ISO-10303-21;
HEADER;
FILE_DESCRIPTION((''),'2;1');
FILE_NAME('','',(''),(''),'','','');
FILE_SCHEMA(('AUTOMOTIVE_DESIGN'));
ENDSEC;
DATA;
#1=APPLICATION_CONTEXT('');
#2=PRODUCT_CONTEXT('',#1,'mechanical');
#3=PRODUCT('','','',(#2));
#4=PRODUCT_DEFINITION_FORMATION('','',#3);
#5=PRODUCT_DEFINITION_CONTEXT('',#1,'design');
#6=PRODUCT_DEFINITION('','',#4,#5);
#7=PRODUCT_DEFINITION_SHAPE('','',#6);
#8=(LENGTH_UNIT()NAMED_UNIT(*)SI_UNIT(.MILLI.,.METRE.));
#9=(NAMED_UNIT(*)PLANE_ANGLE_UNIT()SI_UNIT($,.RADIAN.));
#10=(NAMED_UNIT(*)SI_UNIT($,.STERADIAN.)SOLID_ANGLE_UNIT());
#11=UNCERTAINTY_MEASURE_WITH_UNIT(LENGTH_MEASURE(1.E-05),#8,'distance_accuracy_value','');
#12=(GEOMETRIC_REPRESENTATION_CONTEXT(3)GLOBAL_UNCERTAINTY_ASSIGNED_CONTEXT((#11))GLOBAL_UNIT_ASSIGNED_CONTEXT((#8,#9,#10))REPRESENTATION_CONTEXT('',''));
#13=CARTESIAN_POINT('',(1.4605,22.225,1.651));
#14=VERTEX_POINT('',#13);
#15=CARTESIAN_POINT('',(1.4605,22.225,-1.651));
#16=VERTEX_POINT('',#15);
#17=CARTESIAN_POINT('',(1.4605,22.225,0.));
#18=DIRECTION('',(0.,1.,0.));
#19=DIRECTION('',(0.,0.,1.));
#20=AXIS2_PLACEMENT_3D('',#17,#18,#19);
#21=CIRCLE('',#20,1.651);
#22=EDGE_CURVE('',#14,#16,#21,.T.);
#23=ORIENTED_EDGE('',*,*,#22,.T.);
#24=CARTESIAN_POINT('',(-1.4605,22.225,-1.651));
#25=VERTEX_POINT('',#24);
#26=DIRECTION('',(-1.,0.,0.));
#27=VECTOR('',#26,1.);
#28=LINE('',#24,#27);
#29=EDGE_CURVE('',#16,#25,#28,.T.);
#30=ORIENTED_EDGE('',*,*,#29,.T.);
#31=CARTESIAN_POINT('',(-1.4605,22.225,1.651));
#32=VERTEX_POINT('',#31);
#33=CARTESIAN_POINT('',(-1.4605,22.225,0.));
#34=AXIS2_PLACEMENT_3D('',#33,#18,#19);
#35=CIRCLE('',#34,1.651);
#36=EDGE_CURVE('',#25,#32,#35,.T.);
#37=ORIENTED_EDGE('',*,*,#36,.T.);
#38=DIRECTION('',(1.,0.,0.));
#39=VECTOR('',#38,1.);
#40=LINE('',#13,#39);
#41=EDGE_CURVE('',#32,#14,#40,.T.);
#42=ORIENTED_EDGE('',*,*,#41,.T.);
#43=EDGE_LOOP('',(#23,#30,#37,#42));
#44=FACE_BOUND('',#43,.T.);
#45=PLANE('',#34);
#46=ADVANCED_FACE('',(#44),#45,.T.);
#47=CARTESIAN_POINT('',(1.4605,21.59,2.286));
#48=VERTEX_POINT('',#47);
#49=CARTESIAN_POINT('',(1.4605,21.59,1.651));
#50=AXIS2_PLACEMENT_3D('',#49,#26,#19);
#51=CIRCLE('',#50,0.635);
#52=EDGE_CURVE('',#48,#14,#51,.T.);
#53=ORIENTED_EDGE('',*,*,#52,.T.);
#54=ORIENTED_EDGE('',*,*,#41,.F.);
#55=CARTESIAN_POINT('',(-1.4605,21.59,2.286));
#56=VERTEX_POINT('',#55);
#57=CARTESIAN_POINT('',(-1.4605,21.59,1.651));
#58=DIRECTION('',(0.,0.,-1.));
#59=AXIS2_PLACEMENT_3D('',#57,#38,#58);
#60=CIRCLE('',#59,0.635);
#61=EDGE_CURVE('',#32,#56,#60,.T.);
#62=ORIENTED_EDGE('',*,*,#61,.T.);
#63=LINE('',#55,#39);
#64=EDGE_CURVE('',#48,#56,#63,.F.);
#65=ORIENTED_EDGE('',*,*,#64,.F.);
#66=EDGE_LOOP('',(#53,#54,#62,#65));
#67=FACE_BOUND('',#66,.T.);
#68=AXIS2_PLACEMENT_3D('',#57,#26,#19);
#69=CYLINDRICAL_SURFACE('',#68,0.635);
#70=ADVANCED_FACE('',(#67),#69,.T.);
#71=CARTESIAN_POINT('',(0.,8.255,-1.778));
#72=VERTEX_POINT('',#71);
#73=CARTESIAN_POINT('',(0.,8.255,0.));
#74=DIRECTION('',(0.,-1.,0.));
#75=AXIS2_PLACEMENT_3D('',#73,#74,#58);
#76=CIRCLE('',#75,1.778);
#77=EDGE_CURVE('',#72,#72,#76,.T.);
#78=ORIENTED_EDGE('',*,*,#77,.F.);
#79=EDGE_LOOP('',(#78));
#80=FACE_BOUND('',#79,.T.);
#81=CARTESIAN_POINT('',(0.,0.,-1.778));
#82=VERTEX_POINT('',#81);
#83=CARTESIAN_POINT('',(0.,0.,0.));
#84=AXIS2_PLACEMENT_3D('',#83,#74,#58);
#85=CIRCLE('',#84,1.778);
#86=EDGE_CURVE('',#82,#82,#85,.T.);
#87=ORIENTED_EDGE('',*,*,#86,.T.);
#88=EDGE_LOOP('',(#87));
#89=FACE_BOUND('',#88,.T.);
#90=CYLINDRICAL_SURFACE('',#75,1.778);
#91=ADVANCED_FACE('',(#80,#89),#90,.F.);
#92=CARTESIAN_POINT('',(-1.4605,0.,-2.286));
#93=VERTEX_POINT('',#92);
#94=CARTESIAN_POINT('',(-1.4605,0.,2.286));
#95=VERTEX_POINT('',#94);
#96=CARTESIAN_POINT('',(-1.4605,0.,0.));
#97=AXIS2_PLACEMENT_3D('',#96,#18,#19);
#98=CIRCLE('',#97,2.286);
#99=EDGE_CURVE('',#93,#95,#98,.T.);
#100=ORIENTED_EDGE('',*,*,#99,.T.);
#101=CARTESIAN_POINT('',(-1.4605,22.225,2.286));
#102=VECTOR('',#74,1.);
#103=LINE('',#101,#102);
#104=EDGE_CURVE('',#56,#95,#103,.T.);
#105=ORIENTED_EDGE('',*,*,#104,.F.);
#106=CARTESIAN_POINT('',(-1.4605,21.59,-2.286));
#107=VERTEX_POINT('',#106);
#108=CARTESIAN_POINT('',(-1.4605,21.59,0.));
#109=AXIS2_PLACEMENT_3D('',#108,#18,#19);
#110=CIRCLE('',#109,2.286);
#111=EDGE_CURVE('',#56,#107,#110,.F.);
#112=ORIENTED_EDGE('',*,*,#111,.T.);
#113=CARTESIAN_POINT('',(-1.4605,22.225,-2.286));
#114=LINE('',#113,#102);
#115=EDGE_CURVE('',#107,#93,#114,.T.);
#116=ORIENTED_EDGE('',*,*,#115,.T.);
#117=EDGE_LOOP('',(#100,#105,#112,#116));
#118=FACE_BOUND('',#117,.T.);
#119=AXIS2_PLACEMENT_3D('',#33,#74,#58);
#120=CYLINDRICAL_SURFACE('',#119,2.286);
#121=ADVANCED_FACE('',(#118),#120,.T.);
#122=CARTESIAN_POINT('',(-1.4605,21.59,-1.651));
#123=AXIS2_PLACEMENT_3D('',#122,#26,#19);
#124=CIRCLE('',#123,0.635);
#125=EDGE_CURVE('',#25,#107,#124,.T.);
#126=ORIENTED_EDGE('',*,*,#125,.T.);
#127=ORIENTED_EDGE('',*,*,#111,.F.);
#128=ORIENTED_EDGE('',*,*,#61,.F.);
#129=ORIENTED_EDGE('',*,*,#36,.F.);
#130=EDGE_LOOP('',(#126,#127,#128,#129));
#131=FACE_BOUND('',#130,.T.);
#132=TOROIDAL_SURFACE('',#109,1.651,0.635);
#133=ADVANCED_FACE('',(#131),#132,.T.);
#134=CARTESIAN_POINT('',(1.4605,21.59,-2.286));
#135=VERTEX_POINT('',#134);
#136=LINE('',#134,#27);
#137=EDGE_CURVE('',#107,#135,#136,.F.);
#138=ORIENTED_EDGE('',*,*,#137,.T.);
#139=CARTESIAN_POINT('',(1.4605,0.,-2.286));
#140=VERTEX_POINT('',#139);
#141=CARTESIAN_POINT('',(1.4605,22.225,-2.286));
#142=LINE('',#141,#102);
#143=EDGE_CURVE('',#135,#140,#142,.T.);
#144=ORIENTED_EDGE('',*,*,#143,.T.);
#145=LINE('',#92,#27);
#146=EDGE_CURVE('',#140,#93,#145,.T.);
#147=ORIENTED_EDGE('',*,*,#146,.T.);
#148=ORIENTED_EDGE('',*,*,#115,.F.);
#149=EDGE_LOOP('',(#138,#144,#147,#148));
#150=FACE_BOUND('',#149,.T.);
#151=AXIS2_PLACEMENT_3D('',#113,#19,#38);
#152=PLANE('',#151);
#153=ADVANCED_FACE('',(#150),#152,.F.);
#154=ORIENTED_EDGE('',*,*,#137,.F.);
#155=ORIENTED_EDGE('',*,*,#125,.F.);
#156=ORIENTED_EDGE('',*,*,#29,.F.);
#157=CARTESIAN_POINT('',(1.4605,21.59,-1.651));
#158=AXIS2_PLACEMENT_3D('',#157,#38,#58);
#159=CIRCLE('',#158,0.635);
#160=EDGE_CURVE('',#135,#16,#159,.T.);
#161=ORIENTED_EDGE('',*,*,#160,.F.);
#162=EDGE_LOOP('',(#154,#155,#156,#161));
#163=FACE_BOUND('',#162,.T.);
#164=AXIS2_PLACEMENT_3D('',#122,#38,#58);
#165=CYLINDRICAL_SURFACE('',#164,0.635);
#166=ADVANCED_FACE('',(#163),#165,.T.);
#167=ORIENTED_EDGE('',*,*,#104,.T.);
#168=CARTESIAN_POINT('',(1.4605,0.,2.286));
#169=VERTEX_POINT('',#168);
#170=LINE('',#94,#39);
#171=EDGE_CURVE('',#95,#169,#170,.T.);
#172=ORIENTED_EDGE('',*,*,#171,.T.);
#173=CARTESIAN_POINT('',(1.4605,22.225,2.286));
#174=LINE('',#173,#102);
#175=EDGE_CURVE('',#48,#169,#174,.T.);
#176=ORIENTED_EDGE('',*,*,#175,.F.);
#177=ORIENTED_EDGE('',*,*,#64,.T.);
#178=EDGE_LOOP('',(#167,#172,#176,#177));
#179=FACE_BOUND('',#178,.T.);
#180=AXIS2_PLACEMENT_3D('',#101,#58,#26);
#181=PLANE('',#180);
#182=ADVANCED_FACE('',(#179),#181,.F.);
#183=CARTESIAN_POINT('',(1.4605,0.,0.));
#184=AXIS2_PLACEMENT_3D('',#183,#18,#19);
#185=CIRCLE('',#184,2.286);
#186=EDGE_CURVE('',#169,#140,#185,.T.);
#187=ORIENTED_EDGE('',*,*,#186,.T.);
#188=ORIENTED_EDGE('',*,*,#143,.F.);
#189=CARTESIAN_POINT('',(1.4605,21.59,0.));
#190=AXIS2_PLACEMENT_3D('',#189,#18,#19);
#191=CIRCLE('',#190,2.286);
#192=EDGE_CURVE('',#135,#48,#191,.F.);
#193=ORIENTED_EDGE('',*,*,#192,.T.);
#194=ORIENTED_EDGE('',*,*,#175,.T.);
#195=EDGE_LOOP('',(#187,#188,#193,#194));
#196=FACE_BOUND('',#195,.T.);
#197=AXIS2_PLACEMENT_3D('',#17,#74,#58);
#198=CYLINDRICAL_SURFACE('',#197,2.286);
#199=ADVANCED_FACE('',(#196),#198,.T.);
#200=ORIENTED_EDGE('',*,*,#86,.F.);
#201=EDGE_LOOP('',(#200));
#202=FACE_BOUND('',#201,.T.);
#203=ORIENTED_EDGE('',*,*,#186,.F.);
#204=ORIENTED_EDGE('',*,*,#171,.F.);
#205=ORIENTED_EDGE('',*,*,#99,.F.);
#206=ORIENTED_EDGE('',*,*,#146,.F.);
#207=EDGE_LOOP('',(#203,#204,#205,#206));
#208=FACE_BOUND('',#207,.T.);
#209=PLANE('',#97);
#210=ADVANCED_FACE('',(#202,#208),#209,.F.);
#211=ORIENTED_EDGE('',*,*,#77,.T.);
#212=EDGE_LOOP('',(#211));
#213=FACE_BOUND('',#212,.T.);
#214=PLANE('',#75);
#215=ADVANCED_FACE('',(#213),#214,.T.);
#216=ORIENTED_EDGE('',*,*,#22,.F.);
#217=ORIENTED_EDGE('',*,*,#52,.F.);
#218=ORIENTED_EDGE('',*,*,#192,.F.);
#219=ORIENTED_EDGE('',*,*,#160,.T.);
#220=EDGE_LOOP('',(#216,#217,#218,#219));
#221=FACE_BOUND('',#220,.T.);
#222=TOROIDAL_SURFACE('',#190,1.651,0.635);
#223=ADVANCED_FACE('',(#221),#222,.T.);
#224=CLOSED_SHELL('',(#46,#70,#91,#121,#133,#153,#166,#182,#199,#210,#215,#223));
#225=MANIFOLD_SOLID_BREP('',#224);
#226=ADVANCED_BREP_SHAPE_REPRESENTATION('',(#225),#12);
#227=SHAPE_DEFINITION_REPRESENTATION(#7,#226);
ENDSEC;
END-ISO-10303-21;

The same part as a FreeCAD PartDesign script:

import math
import FreeCAD as App
import Part
import Sketcher

V = App.Vector
Q = App.Units.Quantity


def edges_at(feature, points):
    """Names of the edges that pass closest to the given points."""
    edges = feature.Shape.Edges
    near = lambda p: min(range(len(edges)), key=lambda i: edges[i].distToShape(Part.Vertex(*p))[0])
    return sorted({f"Edge{near(p) + 1}" for p in points})

doc = App.newDocument("Part")
body = doc.addObject("PartDesign::Body", "Body")

# Sketch on XZ plane
sketch1 = doc.addObject("Sketcher::SketchObject", "Sketch")
body.addObject(sketch1)
sketch1.AttachmentSupport = (doc.XZ_Plane, [""])
sketch1.MapMode = "FlatFace"
sketch1.addGeometry([
    Part.LineSegment(V(1.5, -2.3, 0), V(-1.5, -2.3, 0)),
    Part.ArcOfCircle(Part.Circle(V(-1.5, 0, 0), V(0, 0, 1), 2.3), math.radians(90), math.radians(270)),
    Part.LineSegment(V(-1.5, 2.3, 0), V(1.5, 2.3, 0)),
    Part.ArcOfCircle(Part.Circle(V(1.5, 0, 0), V(0, 0, 1), 2.3), math.radians(-90), math.radians(90)),
], False)
sketch1.addConstraint([
    Sketcher.Constraint("Tangent", 0, 2, 1, 2),
    Sketcher.Constraint("Tangent", 1, 1, 2, 1),
    Sketcher.Constraint("Tangent", 2, 2, 3, 2),
    Sketcher.Constraint("Tangent", 3, 1, 0, 1),
    Sketcher.Constraint("Horizontal", 0),
    Sketcher.Constraint("Horizontal", 2),
    Sketcher.Constraint("Symmetric", 1, 3, 3, 3, -1, 1),
    Sketcher.Constraint("Radius", 1, Q("0.09 in")),
    Sketcher.Constraint("DistanceX", 0, 2, 0, 1, Q("0.115 in")),
])
pad1 = doc.addObject("PartDesign::Pad", "Pad")
body.addObject(pad1)
pad1.Profile = sketch1
pad1.Length = Q("0.875 in")
pad1.Reversed = True
doc.recompute()

fillet = doc.addObject("PartDesign::Fillet", "Fillet")
body.addObject(fillet)
fillet.Base = (pad1, edges_at(pad1, [
    (3.747, 22.225, 0),
    (0, 22.225, -2.286),
    (-3.747, 22.225, 0),
    (0, 22.225, 2.286),
]))
fillet.Radius = Q("0.025 in")

# Sketch on XZ plane
sketch2 = doc.addObject("Sketcher::SketchObject", "Sketch001")
body.addObject(sketch2)
sketch2.AttachmentSupport = (doc.XZ_Plane, [""])
sketch2.MapMode = "FlatFace"
sketch2.addGeometry(Part.Circle(V(0, 0, 0), V(0, 0, 1), 1.8), False)
sketch2.addConstraint([
    Sketcher.Constraint("Coincident", 0, 3, -1, 1),
    Sketcher.Constraint("Diameter", 0, Q("0.14 in")),
])
pocket1 = doc.addObject("PartDesign::Pocket", "Pocket")
body.addObject(pocket1)
pocket1.Profile = sketch2
pocket1.Length = Q("0.325 in")

doc.recompute()
